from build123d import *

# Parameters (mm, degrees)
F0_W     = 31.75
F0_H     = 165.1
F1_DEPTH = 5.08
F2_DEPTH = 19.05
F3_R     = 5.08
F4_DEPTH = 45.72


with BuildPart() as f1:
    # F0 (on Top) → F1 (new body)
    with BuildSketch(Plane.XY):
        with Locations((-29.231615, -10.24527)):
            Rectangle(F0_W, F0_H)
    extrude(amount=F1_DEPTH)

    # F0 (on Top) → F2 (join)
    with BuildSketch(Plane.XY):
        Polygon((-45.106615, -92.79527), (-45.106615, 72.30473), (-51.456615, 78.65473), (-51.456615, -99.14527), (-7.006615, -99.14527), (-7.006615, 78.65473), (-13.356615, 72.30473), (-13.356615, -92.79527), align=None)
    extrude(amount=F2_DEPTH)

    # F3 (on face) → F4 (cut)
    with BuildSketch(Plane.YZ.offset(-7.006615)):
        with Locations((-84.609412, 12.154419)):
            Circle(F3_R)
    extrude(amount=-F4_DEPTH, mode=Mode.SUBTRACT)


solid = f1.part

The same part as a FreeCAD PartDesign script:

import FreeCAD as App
import Part
import Sketcher

V = App.Vector
Q = App.Units.Quantity


def add_polygon(sketch, points):
    """Adds a closed chain of lines whose ends are joined by coincident constraints."""
    first, n = sketch.GeometryCount, len(points)
    for a, b in zip(points, points[1:] + points[:1]):
        sketch.addGeometry(Part.LineSegment(App.Vector(*a, 0), App.Vector(*b, 0)), False)
    for i in range(n):
        sketch.addConstraint(Sketcher.Constraint("Coincident", first + i, 2, first + (i + 1) % n, 1))

doc = App.newDocument("Part")
body = doc.addObject("PartDesign::Body", "Body")

# Sketch on XY plane
sketch1 = body.newObject("Sketcher::SketchObject", "Sketch")
sketch1.AttachmentSupport = (doc.getObject("XY_Plane"), [""])
sketch1.MapMode = "FlatFace"
add_polygon(sketch1, [(-45, 72), (-45, -93), (-13, -93), (-13, 72)])  # lines 0-3
sketch1.addConstraint([
    Sketcher.Constraint("Vertical", 0),
    Sketcher.Constraint("Horizontal", 1),
    Sketcher.Constraint("Vertical", 2),
    Sketcher.Constraint("Horizontal", 3),
    Sketcher.Constraint("DistanceY", 0, 2, 0, 1, Q("6.5 in")),
    Sketcher.Constraint("DistanceX", 1, 1, 1, 2, Q("1.25 in")),
    Sketcher.Constraint("DistanceY", 0, 2, -1, 1, Q("92.79527 mm")),
    Sketcher.Constraint("DistanceX", 0, 2, -1, 1, Q("45.106615 mm")),
])
pad1 = body.newObject("PartDesign::Pad", "Pad")
pad1.Profile = sketch1
pad1.Length = Q("0.2 in")

# Sketch on XY plane
sketch2 = body.newObject("Sketcher::SketchObject", "Sketch001")
sketch2.AttachmentSupport = (doc.getObject("XY_Plane"), [""])
sketch2.MapMode = "FlatFace"
add_polygon(sketch2, [(-45, -93), (-45, 72), (-51, 79), (-51, -99), (-7, -99), (-7, 79), (-13, 72), (-13, -93)])  # lines 0-7
sketch2.addConstraint([
    Sketcher.Constraint("Vertical", 0),
    Sketcher.Constraint("Vertical", 2),
    Sketcher.Constraint("Horizontal", 3),
    Sketcher.Constraint("Vertical", 4),
    Sketcher.Constraint("Vertical", 6),
    Sketcher.Constraint("Horizontal", 7),
    Sketcher.Constraint("Perpendicular", 1, 5),
    Sketcher.Constraint("Horizontal", 1, 2, 4, 2),
    Sketcher.Constraint("Horizontal", 0, 2, 5, 2),
    Sketcher.Constraint("Equal", 1, 5),
    Sketcher.Constraint("DistanceY", 2, 2, 2, 1, Q("7 in")),
    Sketcher.Constraint("DistanceY", 0, 1, 0, 2, Q("6.5 in")),
    Sketcher.Constraint("DistanceX", 3, 1, 3, 2, Q("1.75 in")),
    Sketcher.Constraint("DistanceX", 7, 2, 7, 1, Q("1.25 in")),
    Sketcher.Constraint("DistanceY", -1, 1, 0, 2, Q("72.30473 mm")),
    Sketcher.Constraint("DistanceX", 0, 2, -1, 1, Q("45.106615 mm")),
])
pad2 = body.newObject("PartDesign::Pad", "Pad001")
pad2.Profile = sketch2
pad2.Length = Q("0.75 in")

# Sketch on YZ plane
sketch3 = body.newObject("Sketcher::SketchObject", "Sketch002")
sketch3.AttachmentSupport = (doc.getObject("YZ_Plane"), [""])
sketch3.MapMode = "FlatFace"
sketch3.AttachmentOffset = App.Placement(V(0, 0, -7.006615), App.Rotation())
sketch3.addGeometry(Part.Circle(V(-85, 12, 0), V(0, 0, 1), 5), False)
sketch3.addConstraint([
    Sketcher.Constraint("Diameter", 0, Q("0.4 in")),
    Sketcher.Constraint("DistanceY", -1, 1, 0, 3, Q("12.154419 mm")),
    Sketcher.Constraint("DistanceX", 0, 3, -1, 1, Q("84.609412 mm")),
])
pocket1 = body.newObject("PartDesign::Pocket", "Pocket")
pocket1.Profile = sketch3
pocket1.Length = Q("1.8 in")

doc.recompute()
